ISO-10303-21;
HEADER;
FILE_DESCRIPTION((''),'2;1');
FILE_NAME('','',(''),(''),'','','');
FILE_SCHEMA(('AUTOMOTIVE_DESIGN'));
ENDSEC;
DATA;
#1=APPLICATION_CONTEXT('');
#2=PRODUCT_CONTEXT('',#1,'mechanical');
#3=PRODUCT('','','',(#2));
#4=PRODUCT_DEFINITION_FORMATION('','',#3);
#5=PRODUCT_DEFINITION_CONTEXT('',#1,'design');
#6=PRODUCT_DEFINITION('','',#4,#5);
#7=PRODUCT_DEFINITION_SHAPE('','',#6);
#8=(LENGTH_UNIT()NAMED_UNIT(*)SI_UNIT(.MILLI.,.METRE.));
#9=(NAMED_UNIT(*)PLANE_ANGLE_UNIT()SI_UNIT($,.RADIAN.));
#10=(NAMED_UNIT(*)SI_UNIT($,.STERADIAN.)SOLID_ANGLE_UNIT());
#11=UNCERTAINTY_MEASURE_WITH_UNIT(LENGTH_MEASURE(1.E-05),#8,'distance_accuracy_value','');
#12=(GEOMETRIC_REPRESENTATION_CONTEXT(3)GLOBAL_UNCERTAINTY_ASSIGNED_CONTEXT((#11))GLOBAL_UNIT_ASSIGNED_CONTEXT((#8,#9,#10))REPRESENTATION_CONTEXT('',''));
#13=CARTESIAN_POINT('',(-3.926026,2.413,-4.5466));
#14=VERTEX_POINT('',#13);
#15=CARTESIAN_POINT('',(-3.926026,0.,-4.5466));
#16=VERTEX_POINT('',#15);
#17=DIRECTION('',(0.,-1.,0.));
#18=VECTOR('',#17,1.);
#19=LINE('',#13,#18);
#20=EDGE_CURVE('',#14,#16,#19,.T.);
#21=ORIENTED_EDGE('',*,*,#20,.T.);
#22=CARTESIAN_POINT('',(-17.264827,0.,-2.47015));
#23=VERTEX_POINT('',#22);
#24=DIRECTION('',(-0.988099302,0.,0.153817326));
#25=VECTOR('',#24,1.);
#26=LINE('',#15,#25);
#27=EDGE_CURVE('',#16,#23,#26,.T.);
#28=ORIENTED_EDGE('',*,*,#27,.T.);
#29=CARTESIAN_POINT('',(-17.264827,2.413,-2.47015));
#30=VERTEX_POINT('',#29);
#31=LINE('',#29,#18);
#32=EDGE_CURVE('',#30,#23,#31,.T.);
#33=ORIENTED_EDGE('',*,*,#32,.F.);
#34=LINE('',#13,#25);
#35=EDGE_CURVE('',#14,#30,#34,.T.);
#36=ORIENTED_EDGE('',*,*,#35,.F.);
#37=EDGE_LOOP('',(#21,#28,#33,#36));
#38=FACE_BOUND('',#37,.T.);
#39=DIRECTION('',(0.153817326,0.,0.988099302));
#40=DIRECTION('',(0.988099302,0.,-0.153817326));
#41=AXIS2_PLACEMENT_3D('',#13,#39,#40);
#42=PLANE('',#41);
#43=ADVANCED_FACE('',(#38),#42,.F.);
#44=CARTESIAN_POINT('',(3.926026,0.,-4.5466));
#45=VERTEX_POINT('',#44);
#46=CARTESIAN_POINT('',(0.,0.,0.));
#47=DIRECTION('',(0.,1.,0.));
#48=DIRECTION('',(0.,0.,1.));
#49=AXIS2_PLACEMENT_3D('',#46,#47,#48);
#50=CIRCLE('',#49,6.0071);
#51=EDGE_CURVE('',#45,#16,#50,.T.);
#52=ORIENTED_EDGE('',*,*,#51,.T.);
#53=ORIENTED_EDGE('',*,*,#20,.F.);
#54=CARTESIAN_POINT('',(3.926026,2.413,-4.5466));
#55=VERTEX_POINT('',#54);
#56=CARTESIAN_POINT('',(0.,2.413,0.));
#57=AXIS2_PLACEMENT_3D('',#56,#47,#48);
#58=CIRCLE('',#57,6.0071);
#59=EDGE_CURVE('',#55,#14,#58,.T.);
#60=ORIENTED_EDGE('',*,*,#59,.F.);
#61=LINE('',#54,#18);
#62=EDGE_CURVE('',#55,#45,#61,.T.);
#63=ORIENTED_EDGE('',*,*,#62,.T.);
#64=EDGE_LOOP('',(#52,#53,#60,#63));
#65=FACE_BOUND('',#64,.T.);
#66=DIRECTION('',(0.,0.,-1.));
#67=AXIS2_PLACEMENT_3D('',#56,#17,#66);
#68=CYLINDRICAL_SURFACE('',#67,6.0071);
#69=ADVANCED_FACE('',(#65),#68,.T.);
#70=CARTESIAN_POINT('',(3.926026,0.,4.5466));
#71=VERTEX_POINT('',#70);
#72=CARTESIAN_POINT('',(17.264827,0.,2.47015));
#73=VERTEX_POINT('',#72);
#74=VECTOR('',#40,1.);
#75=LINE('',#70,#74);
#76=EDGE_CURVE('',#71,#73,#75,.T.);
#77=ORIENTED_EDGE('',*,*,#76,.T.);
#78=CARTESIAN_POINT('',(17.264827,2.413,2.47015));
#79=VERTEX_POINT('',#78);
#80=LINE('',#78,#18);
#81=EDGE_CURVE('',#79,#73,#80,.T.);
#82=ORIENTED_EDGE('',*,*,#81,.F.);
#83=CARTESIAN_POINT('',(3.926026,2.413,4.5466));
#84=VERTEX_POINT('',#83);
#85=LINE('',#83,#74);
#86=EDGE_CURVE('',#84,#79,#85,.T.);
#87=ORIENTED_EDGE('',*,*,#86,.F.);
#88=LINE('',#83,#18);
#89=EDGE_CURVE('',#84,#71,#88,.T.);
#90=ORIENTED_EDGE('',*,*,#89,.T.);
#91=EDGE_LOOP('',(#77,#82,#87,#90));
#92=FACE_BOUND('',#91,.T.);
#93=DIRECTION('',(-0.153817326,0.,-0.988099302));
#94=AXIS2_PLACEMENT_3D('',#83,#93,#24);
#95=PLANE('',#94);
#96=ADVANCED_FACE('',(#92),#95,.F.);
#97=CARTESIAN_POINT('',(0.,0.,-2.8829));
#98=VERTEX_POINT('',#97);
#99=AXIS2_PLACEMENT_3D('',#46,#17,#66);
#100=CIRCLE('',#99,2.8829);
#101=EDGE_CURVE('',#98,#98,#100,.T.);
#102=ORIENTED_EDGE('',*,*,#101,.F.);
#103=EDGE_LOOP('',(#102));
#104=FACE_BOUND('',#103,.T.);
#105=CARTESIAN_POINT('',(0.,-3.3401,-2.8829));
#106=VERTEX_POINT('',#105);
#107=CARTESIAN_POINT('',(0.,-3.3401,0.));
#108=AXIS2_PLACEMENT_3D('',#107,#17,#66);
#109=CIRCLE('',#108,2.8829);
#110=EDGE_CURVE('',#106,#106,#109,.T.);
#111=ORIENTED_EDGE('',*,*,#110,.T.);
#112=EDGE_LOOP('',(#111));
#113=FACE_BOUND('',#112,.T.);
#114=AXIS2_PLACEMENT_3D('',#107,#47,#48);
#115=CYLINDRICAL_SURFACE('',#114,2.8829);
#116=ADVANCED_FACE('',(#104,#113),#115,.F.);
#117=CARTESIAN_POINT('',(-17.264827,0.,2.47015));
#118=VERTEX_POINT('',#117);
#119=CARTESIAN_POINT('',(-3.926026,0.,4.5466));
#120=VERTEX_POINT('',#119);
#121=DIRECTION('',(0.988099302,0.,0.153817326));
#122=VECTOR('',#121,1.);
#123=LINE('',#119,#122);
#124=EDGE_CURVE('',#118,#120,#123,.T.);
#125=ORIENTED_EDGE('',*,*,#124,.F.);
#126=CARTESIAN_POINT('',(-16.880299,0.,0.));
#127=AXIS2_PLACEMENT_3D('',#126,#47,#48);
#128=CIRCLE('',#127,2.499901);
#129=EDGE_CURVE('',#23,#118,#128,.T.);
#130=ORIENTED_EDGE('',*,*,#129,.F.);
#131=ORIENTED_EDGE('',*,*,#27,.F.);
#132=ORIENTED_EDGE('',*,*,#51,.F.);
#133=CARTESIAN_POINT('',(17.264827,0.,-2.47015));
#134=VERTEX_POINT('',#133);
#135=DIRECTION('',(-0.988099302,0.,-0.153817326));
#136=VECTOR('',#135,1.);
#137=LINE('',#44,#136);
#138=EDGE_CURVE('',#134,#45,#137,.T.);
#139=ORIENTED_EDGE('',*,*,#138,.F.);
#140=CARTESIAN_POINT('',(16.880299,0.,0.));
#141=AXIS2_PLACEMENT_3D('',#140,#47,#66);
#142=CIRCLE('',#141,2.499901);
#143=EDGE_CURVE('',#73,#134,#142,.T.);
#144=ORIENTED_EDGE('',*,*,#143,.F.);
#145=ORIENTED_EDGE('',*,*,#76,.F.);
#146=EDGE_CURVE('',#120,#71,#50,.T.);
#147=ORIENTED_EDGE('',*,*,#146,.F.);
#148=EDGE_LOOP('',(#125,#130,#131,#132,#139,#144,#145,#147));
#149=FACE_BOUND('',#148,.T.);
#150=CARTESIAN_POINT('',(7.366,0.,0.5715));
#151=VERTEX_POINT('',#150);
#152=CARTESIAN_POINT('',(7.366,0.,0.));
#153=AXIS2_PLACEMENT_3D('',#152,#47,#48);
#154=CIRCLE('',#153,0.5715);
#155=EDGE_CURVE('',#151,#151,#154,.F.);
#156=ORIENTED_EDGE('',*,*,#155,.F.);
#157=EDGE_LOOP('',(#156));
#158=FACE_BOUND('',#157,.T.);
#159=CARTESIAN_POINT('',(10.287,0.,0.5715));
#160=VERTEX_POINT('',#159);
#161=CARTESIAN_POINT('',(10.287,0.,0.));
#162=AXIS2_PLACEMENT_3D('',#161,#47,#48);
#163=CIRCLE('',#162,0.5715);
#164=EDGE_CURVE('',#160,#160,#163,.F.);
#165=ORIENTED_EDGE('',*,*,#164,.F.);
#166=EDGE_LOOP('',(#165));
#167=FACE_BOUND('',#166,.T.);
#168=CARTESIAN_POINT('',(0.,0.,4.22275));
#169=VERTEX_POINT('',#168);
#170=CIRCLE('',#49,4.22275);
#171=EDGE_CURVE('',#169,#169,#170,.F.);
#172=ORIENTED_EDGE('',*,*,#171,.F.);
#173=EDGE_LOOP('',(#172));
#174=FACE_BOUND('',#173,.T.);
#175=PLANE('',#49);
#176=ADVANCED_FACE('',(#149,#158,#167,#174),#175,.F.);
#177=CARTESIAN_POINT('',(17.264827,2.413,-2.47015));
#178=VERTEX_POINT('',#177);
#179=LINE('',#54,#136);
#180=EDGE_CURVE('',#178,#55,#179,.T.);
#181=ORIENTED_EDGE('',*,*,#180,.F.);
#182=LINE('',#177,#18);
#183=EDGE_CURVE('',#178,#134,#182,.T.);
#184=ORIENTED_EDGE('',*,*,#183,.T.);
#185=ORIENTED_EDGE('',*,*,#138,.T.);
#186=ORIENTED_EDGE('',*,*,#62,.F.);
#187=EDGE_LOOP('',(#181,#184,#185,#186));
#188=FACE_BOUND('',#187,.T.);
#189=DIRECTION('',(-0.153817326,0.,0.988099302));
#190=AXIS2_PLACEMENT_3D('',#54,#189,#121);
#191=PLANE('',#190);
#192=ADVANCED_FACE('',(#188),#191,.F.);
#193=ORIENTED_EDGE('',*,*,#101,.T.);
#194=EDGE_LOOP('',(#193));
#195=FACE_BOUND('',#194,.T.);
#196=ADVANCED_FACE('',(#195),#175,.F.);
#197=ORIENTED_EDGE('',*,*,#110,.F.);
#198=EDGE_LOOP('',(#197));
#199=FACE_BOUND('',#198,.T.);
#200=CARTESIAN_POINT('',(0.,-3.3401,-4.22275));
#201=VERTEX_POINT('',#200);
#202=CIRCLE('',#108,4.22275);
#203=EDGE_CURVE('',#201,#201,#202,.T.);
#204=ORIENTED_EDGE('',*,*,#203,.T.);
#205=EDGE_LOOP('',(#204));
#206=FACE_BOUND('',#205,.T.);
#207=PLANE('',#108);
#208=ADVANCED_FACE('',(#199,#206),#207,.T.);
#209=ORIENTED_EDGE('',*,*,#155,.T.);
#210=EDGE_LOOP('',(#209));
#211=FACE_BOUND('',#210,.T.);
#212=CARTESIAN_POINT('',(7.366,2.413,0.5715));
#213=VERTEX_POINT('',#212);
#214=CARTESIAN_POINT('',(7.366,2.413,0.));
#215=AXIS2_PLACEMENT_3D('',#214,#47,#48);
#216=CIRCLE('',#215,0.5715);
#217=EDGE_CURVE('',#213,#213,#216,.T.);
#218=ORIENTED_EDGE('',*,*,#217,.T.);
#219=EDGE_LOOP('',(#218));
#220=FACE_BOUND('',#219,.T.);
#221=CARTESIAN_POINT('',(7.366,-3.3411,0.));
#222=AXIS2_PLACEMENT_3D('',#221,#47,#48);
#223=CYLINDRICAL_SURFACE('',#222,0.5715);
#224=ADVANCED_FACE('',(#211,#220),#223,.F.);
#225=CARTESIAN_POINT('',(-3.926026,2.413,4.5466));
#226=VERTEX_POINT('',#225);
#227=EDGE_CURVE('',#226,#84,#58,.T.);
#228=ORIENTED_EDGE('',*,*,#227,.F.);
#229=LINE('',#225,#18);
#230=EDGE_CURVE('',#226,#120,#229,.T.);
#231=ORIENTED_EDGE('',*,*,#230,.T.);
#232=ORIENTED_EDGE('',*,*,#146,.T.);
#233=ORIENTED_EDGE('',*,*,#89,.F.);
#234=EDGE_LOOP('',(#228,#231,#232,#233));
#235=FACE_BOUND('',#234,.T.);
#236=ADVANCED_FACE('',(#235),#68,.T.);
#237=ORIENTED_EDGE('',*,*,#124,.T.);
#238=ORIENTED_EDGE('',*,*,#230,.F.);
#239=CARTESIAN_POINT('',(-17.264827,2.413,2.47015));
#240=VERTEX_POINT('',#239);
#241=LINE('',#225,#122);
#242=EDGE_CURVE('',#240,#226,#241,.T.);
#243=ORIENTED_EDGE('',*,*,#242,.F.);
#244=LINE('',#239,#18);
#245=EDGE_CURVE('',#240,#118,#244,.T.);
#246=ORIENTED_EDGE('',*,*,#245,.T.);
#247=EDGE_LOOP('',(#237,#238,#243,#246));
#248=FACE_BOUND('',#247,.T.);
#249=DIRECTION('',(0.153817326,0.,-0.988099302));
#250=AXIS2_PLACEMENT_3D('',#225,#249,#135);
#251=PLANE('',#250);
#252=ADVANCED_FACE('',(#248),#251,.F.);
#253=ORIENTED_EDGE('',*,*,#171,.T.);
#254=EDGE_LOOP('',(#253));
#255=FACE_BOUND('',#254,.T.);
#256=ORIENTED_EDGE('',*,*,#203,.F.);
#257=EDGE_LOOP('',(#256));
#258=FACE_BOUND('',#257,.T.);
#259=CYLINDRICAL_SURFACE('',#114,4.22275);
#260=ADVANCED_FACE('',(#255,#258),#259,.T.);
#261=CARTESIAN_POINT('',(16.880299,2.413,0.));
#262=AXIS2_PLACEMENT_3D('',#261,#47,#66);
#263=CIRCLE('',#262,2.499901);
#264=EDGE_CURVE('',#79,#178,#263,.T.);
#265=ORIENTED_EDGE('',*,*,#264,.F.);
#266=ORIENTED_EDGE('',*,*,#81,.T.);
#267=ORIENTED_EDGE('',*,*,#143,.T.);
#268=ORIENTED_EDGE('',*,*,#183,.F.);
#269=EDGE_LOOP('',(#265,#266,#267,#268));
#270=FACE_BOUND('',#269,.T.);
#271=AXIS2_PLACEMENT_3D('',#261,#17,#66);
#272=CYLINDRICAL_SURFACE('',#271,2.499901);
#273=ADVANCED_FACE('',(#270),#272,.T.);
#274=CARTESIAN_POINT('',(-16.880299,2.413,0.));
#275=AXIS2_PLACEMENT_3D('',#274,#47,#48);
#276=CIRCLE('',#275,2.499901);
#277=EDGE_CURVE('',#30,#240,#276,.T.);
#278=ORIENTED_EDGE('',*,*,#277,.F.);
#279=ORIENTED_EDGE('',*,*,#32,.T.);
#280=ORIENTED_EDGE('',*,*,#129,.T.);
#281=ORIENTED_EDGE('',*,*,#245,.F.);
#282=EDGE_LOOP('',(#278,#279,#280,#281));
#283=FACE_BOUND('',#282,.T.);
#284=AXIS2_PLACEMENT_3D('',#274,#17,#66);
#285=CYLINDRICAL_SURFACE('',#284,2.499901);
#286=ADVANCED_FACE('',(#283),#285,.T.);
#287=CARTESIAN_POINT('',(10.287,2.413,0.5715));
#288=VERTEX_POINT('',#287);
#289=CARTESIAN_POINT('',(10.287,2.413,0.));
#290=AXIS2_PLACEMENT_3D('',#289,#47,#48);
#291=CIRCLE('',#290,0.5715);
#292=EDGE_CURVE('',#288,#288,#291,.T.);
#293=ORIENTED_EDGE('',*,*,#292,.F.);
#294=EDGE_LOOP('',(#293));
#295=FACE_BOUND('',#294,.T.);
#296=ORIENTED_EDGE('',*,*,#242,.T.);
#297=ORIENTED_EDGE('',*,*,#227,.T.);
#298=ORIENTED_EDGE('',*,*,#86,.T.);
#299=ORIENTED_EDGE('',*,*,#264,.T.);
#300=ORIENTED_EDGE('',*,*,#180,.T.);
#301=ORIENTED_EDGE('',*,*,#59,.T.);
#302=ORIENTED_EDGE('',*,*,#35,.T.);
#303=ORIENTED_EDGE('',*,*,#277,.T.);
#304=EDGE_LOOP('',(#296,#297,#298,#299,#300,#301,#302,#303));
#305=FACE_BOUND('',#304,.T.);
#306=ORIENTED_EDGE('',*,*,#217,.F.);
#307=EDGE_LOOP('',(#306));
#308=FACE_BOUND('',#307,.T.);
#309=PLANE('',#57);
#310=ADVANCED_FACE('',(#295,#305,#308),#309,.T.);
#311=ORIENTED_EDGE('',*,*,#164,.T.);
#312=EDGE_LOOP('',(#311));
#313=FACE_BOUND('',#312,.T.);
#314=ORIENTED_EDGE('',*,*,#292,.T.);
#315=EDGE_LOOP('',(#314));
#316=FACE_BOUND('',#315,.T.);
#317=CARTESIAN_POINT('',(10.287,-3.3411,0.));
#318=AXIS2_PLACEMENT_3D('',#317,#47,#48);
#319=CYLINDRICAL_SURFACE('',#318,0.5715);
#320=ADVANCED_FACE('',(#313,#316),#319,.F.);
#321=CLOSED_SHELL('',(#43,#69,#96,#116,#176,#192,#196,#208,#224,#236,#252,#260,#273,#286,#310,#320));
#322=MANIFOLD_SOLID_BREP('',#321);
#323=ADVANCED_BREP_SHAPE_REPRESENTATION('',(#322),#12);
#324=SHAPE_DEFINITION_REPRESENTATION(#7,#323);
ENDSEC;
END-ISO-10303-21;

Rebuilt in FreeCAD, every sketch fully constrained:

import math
import FreeCAD as App
import Part
import Sketcher

V = App.Vector
Q = App.Units.Quantity

doc = App.newDocument("Part")
params = doc.addObject("Spreadsheet::Sheet", "Params")
for row, (alias, value) in enumerate([
    ("pad1_length", "0.095 in"),
    ("sketch2_diameter", "0.227 in"),
    ("pad2_length", "0.1315 in"),
    ("sketch3_diameter", "0.045 in"),
    ("sketch4_diameter", "0.045 in"),
], start=1):
    params.set(f"A{row}", alias)
    params.set(f"B{row}", "=" + value)
    params.setAlias(f"B{row}", alias)

body = doc.addObject("PartDesign::Body", "Body")

sketch1 = body.newObject("Sketcher::SketchObject", "Sketch")
sketch1.AttachmentSupport = (doc.getObject("XZ_Plane"), [""])
sketch1.MapMode = "FlatFace"
sketch1.addGeometry([
    Part.LineSegment(V(17.264827, -2.47015, 0), V(3.926026, -4.5466, 0)),
    Part.ArcOfCircle(Part.Circle(V(0, 0, 0), V(0, 0, 1), 6.0071), math.radians(-130.810874), math.radians(-49.189126)),
    Part.LineSegment(V(-3.926026, -4.5466, 0), V(-17.264827, -2.47015, 0)),
    Part.ArcOfCircle(Part.Circle(V(-16.880299, 0, 0), V(0, 0, 1), 2.499901), math.radians(98.848211), math.radians(261.151789)),
    Part.LineSegment(V(-17.264827, 2.47015, 0), V(-3.926026, 4.5466, 0)),
    Part.ArcOfCircle(Part.Circle(V(0, 0, 0), V(0, 0, 1), 6.0071), math.radians(49.189126), math.radians(130.810874)),
    Part.LineSegment(V(3.926026, 4.5466, 0), V(17.264827, 2.47015, 0)),
    Part.ArcOfCircle(Part.Circle(V(16.880299, 0, 0), V(0, 0, 1), 2.499901), math.radians(-81.151789), math.radians(81.151789)),
], False)
sketch1.addConstraint([
    Sketcher.Constraint("Coincident", 0, 2, 1, 2),
    Sketcher.Constraint("Coincident", 1, 1, 2, 1),
    Sketcher.Constraint("Coincident", 2, 2, 3, 2),
    Sketcher.Constraint("Coincident", 3, 1, 4, 1),
    Sketcher.Constraint("Coincident", 4, 2, 5, 2),
    Sketcher.Constraint("Coincident", 5, 1, 6, 1),
    Sketcher.Constraint("Coincident", 6, 2, 7, 2),
    Sketcher.Constraint("Coincident", 7, 1, 0, 1),
    Sketcher.Constraint("Coincident", 1, 3, -1, 1),
    Sketcher.Constraint("Coincident", 5, 3, -1, 1),
    Sketcher.Constraint("PointOnObject", 3, 3, -1),
    Sketcher.Constraint("PointOnObject", 7, 3, -1),
    Sketcher.Constraint("Radius", 1, Q("0.2365 in")),
    Sketcher.Constraint("Radius", 5, Q("0.2365 in")),
    Sketcher.Constraint("Radius", 3, 2.499901),
    Sketcher.Constraint("Radius", 7, 2.499901),
    Sketcher.Constraint("DistanceY", 0, 2, -1, 1, Q("0.179 in")),
    Sketcher.Constraint("DistanceY", 1, 1, -1, 1, Q("0.179 in")),
    Sketcher.Constraint("DistanceY", -1, 1, 4, 2, Q("0.179 in")),
    Sketcher.Constraint("DistanceY", -1, 1, 5, 1, Q("0.179 in")),
    Sketcher.Constraint("DistanceY", 2, 2, 3, 1, Q("0.1945 in")),
    Sketcher.Constraint("DistanceY", 7, 1, 6, 2, Q("0.1945 in")),
    Sketcher.Constraint("DistanceX", 3, 3, -1, 1, 16.880299),
    Sketcher.Constraint("DistanceX", -1, 1, 7, 3, 16.880299),
    Sketcher.Constraint("DistanceX", 2, 2, 1, 1, 13.338802),
    Sketcher.Constraint("DistanceX", 5, 1, 6, 2, 13.338802),
])
pad1 = body.newObject("PartDesign::Pad", "Pad")
pad1.Profile = sketch1
pad1.setExpression("Length", "Params.pad1_length")
pad1.Reversed = True

sketch2 = body.newObject("Sketcher::SketchObject", "Sketch001")
sketch2.AttachmentSupport = (doc.getObject("XZ_Plane"), [""])
sketch2.MapMode = "FlatFace"
sketch2.addGeometry([
    Part.Circle(V(0, 0, 0), V(0, 0, 1), 4.22275),
    Part.Circle(V(0, 0, 0), V(0, 0, 1), 2.8829),
], False)
sketch2.addConstraint([
    Sketcher.Constraint("Coincident", 0, 3, -1, 1),
    Sketcher.Constraint("Coincident", 1, 3, -1, 1),
    Sketcher.Constraint("Diameter", 1, Q("0.227 in")),
    Sketcher.Constraint("Diameter", 0, Q("0.3325 in")),
])
sketch2.setExpression("Constraints[2]", "Params.sketch2_diameter")
pad2 = body.newObject("PartDesign::Pad", "Pad001")
pad2.Profile = sketch2
pad2.setExpression("Length", "Params.pad2_length")

sketch3 = body.newObject("Sketcher::SketchObject", "Sketch002")
sketch3.AttachmentSupport = (doc.getObject("XZ_Plane"), [""])
sketch3.MapMode = "FlatFace"
sketch3.AttachmentOffset = App.Placement(V(0, 0, -0.095 * 25.4), App.Rotation())
sketch3.addGeometry(Part.Circle(V(7.366, 0, 0), V(0, 0, 1), 0.5715), False)
sketch3.addConstraint([
    Sketcher.Constraint("PointOnObject", 0, 3, -1),
    Sketcher.Constraint("Diameter", 0, Q("0.045 in")),
    Sketcher.Constraint("DistanceX", -1, 1, 0, 3, Q("0.29 in")),
])
sketch3.setExpression("Constraints[1]", "Params.sketch3_diameter")
pocket1 = body.newObject("PartDesign::Pocket", "Pocket")
pocket1.Profile = sketch3
pocket1.Type = "UpToFirst"
pocket1.Reversed = True

sketch4 = body.newObject("Sketcher::SketchObject", "Sketch003")
sketch4.AttachmentSupport = (doc.getObject("XZ_Plane"), [""])
sketch4.MapMode = "FlatFace"
sketch4.AttachmentOffset = App.Placement(V(0, 0, -0.095 * 25.4), App.Rotation())
sketch4.addGeometry(Part.Circle(V(10.287, 0, 0), V(0, 0, 1), 0.5715), False)
sketch4.addConstraint([
    Sketcher.Constraint("PointOnObject", 0, 3, -1),
    Sketcher.Constraint("Diameter", 0, Q("0.045 in")),
    Sketcher.Constraint("DistanceX", -1, 1, 0, 3, Q("0.405 in")),
])
sketch4.setExpression("Constraints[1]", "Params.sketch4_diameter")
pocket2 = body.newObject("PartDesign::Pocket", "Pocket001")
pocket2.Profile = sketch4
pocket2.Type = "UpToFirst"
pocket2.Reversed = True

doc.recompute()
